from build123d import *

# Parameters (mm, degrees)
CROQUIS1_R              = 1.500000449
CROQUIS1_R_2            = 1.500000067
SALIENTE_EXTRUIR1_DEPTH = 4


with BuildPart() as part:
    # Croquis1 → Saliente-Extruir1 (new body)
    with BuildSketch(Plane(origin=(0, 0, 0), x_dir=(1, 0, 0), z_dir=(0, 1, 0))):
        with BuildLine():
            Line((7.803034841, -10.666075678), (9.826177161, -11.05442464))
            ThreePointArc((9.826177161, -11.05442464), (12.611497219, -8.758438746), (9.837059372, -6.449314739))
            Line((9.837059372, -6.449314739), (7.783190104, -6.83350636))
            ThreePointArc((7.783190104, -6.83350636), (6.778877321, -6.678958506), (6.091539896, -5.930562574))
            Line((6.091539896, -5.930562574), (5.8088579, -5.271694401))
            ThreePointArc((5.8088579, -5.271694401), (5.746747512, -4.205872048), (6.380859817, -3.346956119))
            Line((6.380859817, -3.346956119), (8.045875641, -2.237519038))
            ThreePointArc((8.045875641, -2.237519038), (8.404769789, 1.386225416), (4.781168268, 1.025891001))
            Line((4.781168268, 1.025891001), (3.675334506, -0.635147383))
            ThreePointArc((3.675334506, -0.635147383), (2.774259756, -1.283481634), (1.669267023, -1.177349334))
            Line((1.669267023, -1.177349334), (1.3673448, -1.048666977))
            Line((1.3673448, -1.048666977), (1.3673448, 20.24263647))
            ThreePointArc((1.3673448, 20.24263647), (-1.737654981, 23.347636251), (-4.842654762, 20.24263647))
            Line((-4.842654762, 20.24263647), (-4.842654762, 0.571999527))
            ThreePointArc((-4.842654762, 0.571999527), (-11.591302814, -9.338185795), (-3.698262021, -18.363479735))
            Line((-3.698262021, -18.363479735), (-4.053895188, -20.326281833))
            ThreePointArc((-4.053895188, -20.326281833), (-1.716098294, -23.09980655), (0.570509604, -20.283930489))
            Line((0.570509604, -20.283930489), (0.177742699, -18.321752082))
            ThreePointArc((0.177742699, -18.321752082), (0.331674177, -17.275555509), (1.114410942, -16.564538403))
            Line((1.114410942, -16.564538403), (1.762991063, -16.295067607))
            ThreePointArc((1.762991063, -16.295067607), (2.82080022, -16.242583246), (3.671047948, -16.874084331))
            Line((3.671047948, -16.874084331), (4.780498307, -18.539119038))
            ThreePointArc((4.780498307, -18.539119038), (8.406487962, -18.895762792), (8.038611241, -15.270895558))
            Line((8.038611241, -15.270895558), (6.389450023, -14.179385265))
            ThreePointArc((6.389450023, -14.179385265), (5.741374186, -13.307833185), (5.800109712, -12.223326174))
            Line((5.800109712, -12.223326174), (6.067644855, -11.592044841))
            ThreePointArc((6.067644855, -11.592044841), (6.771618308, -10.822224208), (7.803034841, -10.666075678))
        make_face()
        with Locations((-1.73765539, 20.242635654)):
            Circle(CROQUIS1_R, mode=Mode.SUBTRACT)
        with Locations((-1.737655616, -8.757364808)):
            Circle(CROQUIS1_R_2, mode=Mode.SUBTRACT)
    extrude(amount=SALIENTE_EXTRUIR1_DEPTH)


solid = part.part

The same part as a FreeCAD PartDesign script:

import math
import FreeCAD as App
import Part
import Sketcher
from FreeCAD import Vector

doc = App.newDocument("Part")
body = doc.addObject("PartDesign::Body", "Body")

sketch1 = body.newObject("Sketcher::SketchObject", "Sketch")
sketch1.AttachmentSupport = (doc.getObject("XZ_Plane"), [""])
sketch1.MapMode = "FlatFace"
sketch1.addGeometry([
    Part.LineSegment(Vector(7.803035, 10.666076, 0), Vector(9.826177, 11.054425, 0)),
    Part.ArcOfCircle(Part.Circle(Vector(10.267962, 8.752901, 0), Vector(0, 0, 1), 2.343541), math.radians(-100.59516), math.radians(100.865948)),
    Part.LineSegment(Vector(9.837059, 6.449315, 0), Vector(7.78319, 6.833506, 0)),
    Part.ArcOfCircle(Part.Circle(Vector(7.501158, 5.325777, 0), Vector(0, 0, 1), 1.53388), math.radians(79.40484), math.radians(156.778644)),
    Part.LineSegment(Vector(6.09154, 5.930563, 0), Vector(5.808858, 5.271694, 0)),
    Part.ArcOfCircle(Part.Circle(Vector(7.251059, 4.65293, 0), Vector(0, 0, 1), 1.569336), math.radians(156.778644), math.radians(236.323597)),
    Part.LineSegment(Vector(6.38086, 3.346956, 0), Vector(8.045876, 2.237519, 0)),
    Part.ArcOfCircle(Part.Circle(Vector(6.740605, 0.278601, 0), Vector(0, 0, 1), 2.353952), math.radians(-146.346369), math.radians(56.323597)),
    Part.LineSegment(Vector(4.781168, -1.025891, 0), Vector(3.675335, 0.635147, 0)),
    Part.ArcOfCircle(Part.Circle(Vector(2.362862, -0.238629, 0), Vector(0, 0, 1), 1.576727), math.radians(33.653631), math.radians(116.097208)),
    Part.LineSegment(Vector(1.669267, 1.177349, 0), Vector(1.367345, 1.048667, 0)),
    Part.LineSegment(Vector(1.367345, 1.048667, 0), Vector(1.367345, -20.242636, 0)),
    Part.ArcOfCircle(Part.Circle(Vector(-1.737655, -20.242636, 0), Vector(0, 0, 1), 3.105), math.radians(180), math.radians(360)),
    Part.LineSegment(Vector(-4.842655, -20.242636, 0), Vector(-4.842655, -0.572, 0)),
    Part.ArcOfCircle(Part.Circle(Vector(-1.808766, 8.746964, 0), Vector(0, 0, 1), 9.800386), math.radians(101.116123), math.radians(251.966786)),
    Part.LineSegment(Vector(-3.698262, 18.36348, 0), Vector(-4.053895, 20.326282, 0)),
    Part.ArcOfCircle(Part.Circle(Vector(-1.737655, 20.745953, 0), Vector(0, 0, 1), 2.353952), math.radians(-11.319232), math.radians(190.269806)),
    Part.LineSegment(Vector(0.57051, 20.28393, 0), Vector(0.177743, 18.321752, 0)),
    Part.ArcOfCircle(Part.Circle(Vector(1.716521, 18.013737, 0), Vector(0, 0, 1), 1.569303), math.radians(168.680768), math.radians(247.438189)),
    Part.LineSegment(Vector(1.114411, 16.564538, 0), Vector(1.762991, 16.295068, 0)),
    Part.ArcOfCircle(Part.Circle(Vector(2.365101, 17.744266, 0), Vector(0, 0, 1), 1.569303), math.radians(-112.561811), math.radians(-33.67642)),
    Part.LineSegment(Vector(3.671048, 16.874084, 0), Vector(4.780498, 18.539119, 0)),
    Part.ArcOfCircle(Part.Circle(Vector(6.739416, 17.233848, 0), Vector(0, 0, 1), 2.353952), math.radians(-56.501104), math.radians(146.32358)),
    Part.LineSegment(Vector(8.038611, 15.270896, 0), Vector(6.38945, 14.179385, 0)),
    Part.ArcOfCircle(Part.Circle(Vector(7.271397, 12.846853, 0), Vector(0, 0, 1), 1.597959), math.radians(123.498896), math.radians(202.967086)),
    Part.LineSegment(Vector(5.80011, 12.223326, 0), Vector(6.067645, 11.592045, 0)),
    Part.ArcOfCircle(Part.Circle(Vector(7.508111, 12.20251, 0), Vector(0, 0, 1), 1.564484), math.radians(-157.032914), math.radians(-79.134052)),
    Part.Circle(Vector(-1.737656, 8.757365, 0), Vector(0, 0, 1), 1.5),
    Part.Circle(Vector(-1.737655, -20.242636, 0), Vector(0, 0, 1), 1.5),
], False)
sketch1.addConstraint([
    Sketcher.Constraint("Coincident", 0, 2, 1, 2),
    Sketcher.Constraint("Coincident", 1, 1, 2, 1),
    Sketcher.Constraint("Coincident", 2, 2, 3, 1),
    Sketcher.Constraint("Coincident", 3, 2, 4, 1),
    Sketcher.Constraint("Coincident", 4, 2, 5, 1),
    Sketcher.Constraint("Coincident", 5, 2, 6, 1),
    Sketcher.Constraint("Coincident", 6, 2, 7, 2),
    Sketcher.Constraint("Coincident", 7, 1, 8, 1),
    Sketcher.Constraint("Coincident", 8, 2, 9, 1),
    Sketcher.Constraint("Coincident", 9, 2, 10, 1),
    Sketcher.Constraint("Coincident", 10, 2, 11, 1),
    Sketcher.Constraint("Coincident", 11, 2, 12, 2),
    Sketcher.Constraint("Coincident", 12, 1, 13, 1),
    Sketcher.Constraint("Coincident", 13, 2, 14, 2),
    Sketcher.Constraint("Coincident", 14, 1, 15, 1),
    Sketcher.Constraint("Coincident", 15, 2, 16, 2),
    Sketcher.Constraint("Coincident", 16, 1, 17, 1),
    Sketcher.Constraint("Coincident", 17, 2, 18, 1),
    Sketcher.Constraint("Coincident", 18, 2, 19, 1),
    Sketcher.Constraint("Coincident", 19, 2, 20, 1),
    Sketcher.Constraint("Coincident", 20, 2, 21, 1),
    Sketcher.Constraint("Coincident", 21, 2, 22, 2),
    Sketcher.Constraint("Coincident", 22, 1, 23, 1),
    Sketcher.Constraint("Coincident", 23, 2, 24, 1),
    Sketcher.Constraint("Coincident", 24, 2, 25, 1),
    Sketcher.Constraint("Coincident", 25, 2, 26, 1),
    Sketcher.Constraint("Coincident", 26, 2, 0, 1),
    Sketcher.Constraint("Vertical", 11),
    Sketcher.Constraint("Vertical", 13),
    Sketcher.Constraint("Coincident", 28, 3, 12, 3),
    Sketcher.Constraint("Diameter", 27, 3.0),
    Sketcher.Constraint("Diameter", 28, 3.000001),
    Sketcher.Constraint("Radius", 12, 3.105),
    Sketcher.Constraint("Radius", 1, 2.343541),
    Sketcher.Constraint("Radius", 3, 1.53388),
    Sketcher.Constraint("Radius", 24, 1.597959),
    Sketcher.Constraint("DistanceY", 13, 2, -1, 1, 0.572),
    Sketcher.Constraint("Radius", 5, 1.569336),
    Sketcher.Constraint("Radius", 7, 2.353952),
    Sketcher.Constraint("Radius", 9, 1.576727),
    Sketcher.Constraint("Radius", 14, 9.800386),
    Sketcher.Constraint("Radius", 16, 2.353952),
    Sketcher.Constraint("Radius", 18, 1.569303),
    Sketcher.Constraint("Radius", 20, 1.569303),
    Sketcher.Constraint("Radius", 22, 2.353952),
    Sketcher.Constraint("Radius", 26, 1.564484),
    Sketcher.Constraint("DistanceX", 5, 3, 1, 1, 2.586),
    Sketcher.Constraint("DistanceX", 4, 2, 5, 2, 0.572002),
    Sketcher.Constraint("DistanceX", 24, 2, 26, 3, 1.708001),
    Sketcher.Constraint("Distance", 10, 0.328201),
    Sketcher.Constraint("DistanceY", -1, 1, 1, 3, 8.752901),
    Sketcher.Constraint("DistanceY", -1, 1, 7, 3, 0.278601),
    Sketcher.Constraint("DistanceX", -1, 1, 20, 3, 2.365101),
    Sketcher.Constraint("DistanceX", -1, 1, 21, 2, 4.780498),
    Sketcher.Constraint("DistanceX", 5, 3, 3, 3, 0.250099),
    Sketcher.Constraint("DistanceX", 9, 3, 1, 3, 7.9051),
    Sketcher.Constraint("DistanceY", 14, 3, 20, 3, 8.997302),
    Sketcher.Constraint("DistanceY", 14, 3, 27, 3, 0.010401),
    Sketcher.Constraint("DistanceX", 4, 2, 5, 3, 1.442201),
    Sketcher.Constraint("DistanceY", 8, 2, 9, 2, 0.542202),
    Sketcher.Constraint("DistanceX", 9, 2, 7, 1, 3.111901),
    Sketcher.Constraint("DistanceX", 16, 3, 17, 2, 1.915398),
    Sketcher.Constraint("DistanceY", 17, 2, 16, 3, 2.424201),
    Sketcher.Constraint("DistanceY", 18, 2, 18, 3, 1.449198),
    Sketcher.Constraint("DistanceX", 16, 1, 18, 2, 0.543901),
    Sketcher.Constraint("DistanceY", 19, 2, 20, 3, 1.449199),
    Sketcher.Constraint("DistanceX", 26, 3, 22, 1, 0.5305),
    Sketcher.Constraint("DistanceY", 23, 2, 20, 2, 2.694699),
    Sketcher.Constraint("DistanceY", 0, 2, 24, 2, 1.168902),
    Sketcher.Constraint("Distance", 4, 0.716949),
    Sketcher.Constraint("Distance", 6, 2.000782),
    Sketcher.Constraint("Distance", 15, 1.99476),
    Sketcher.Constraint("Distance", 25, 0.685632),
    Sketcher.Constraint("DistanceY", 11, 2, 11, 1, 21.291303),
    Sketcher.Constraint("DistanceY", 13, 1, 13, 2, 19.670637),
    Sketcher.Constraint("DistanceX", -1, 1, 3, 3, 7.501158),
    Sketcher.Constraint("DistanceY", -1, 1, 5, 3, 4.65293),
    Sketcher.Constraint("DistanceY", 9, 3, -1, 1, 0.238629),
    Sketcher.Constraint("DistanceX", -1, 1, 18, 3, 1.716521),
    Sketcher.Constraint("DistanceX", -1, 1, 26, 3, 7.508111),
    Sketcher.Constraint("DistanceY", -1, 1, 26, 3, 12.20251),
    Sketcher.Constraint("DistanceX", -1, 1, 2, 2, 7.78319),
    Sketcher.Constraint("DistanceX", -1, 1, 3, 2, 6.09154),
    Sketcher.Constraint("DistanceY", -1, 1, 6, 2, 2.237519),
    Sketcher.Constraint("DistanceX", -1, 1, 7, 1, 4.781168),
    Sketcher.Constraint("DistanceY", -1, 1, 9, 2, 1.177349),
    Sketcher.Constraint("DistanceY", -1, 1, 14, 1, 18.36348),
    Sketcher.Constraint("DistanceY", -1, 1, 15, 2, 20.326282),
    Sketcher.Constraint("DistanceY", -1, 1, 16, 1, 20.28393),
    Sketcher.Constraint("DistanceY", -1, 1, 21, 2, 18.539119),
    Sketcher.Constraint("DistanceX", -1, 1, 23, 2, 6.38945),
    Sketcher.Constraint("DistanceX", 12, 3, 7, 3, 8.47826),
    Sketcher.Constraint("DistanceX", 14, 3, 9, 3, 4.171628),
    Sketcher.Constraint("DistanceY", 22, 3, 20, 3, 0.510418),
    Sketcher.Constraint("DistanceX", 22, 3, 24, 3, 0.531981),
    Sketcher.Constraint("DistanceX", 14, 3, 27, 3, 0.071111),
    Sketcher.Constraint("DistanceX", 24, 3, 0, 2, 2.55478),
    Sketcher.Constraint("DistanceX", 25, 2, 26, 2, 1.73539),
    Sketcher.Constraint("DistanceY", 12, 3, -1, 1, 20.242636),
])
pad1 = body.newObject("PartDesign::Pad", "Pad")
pad1.Profile = sketch1
pad1.Length = 4
pad1.Reversed = True

doc.recompute()
